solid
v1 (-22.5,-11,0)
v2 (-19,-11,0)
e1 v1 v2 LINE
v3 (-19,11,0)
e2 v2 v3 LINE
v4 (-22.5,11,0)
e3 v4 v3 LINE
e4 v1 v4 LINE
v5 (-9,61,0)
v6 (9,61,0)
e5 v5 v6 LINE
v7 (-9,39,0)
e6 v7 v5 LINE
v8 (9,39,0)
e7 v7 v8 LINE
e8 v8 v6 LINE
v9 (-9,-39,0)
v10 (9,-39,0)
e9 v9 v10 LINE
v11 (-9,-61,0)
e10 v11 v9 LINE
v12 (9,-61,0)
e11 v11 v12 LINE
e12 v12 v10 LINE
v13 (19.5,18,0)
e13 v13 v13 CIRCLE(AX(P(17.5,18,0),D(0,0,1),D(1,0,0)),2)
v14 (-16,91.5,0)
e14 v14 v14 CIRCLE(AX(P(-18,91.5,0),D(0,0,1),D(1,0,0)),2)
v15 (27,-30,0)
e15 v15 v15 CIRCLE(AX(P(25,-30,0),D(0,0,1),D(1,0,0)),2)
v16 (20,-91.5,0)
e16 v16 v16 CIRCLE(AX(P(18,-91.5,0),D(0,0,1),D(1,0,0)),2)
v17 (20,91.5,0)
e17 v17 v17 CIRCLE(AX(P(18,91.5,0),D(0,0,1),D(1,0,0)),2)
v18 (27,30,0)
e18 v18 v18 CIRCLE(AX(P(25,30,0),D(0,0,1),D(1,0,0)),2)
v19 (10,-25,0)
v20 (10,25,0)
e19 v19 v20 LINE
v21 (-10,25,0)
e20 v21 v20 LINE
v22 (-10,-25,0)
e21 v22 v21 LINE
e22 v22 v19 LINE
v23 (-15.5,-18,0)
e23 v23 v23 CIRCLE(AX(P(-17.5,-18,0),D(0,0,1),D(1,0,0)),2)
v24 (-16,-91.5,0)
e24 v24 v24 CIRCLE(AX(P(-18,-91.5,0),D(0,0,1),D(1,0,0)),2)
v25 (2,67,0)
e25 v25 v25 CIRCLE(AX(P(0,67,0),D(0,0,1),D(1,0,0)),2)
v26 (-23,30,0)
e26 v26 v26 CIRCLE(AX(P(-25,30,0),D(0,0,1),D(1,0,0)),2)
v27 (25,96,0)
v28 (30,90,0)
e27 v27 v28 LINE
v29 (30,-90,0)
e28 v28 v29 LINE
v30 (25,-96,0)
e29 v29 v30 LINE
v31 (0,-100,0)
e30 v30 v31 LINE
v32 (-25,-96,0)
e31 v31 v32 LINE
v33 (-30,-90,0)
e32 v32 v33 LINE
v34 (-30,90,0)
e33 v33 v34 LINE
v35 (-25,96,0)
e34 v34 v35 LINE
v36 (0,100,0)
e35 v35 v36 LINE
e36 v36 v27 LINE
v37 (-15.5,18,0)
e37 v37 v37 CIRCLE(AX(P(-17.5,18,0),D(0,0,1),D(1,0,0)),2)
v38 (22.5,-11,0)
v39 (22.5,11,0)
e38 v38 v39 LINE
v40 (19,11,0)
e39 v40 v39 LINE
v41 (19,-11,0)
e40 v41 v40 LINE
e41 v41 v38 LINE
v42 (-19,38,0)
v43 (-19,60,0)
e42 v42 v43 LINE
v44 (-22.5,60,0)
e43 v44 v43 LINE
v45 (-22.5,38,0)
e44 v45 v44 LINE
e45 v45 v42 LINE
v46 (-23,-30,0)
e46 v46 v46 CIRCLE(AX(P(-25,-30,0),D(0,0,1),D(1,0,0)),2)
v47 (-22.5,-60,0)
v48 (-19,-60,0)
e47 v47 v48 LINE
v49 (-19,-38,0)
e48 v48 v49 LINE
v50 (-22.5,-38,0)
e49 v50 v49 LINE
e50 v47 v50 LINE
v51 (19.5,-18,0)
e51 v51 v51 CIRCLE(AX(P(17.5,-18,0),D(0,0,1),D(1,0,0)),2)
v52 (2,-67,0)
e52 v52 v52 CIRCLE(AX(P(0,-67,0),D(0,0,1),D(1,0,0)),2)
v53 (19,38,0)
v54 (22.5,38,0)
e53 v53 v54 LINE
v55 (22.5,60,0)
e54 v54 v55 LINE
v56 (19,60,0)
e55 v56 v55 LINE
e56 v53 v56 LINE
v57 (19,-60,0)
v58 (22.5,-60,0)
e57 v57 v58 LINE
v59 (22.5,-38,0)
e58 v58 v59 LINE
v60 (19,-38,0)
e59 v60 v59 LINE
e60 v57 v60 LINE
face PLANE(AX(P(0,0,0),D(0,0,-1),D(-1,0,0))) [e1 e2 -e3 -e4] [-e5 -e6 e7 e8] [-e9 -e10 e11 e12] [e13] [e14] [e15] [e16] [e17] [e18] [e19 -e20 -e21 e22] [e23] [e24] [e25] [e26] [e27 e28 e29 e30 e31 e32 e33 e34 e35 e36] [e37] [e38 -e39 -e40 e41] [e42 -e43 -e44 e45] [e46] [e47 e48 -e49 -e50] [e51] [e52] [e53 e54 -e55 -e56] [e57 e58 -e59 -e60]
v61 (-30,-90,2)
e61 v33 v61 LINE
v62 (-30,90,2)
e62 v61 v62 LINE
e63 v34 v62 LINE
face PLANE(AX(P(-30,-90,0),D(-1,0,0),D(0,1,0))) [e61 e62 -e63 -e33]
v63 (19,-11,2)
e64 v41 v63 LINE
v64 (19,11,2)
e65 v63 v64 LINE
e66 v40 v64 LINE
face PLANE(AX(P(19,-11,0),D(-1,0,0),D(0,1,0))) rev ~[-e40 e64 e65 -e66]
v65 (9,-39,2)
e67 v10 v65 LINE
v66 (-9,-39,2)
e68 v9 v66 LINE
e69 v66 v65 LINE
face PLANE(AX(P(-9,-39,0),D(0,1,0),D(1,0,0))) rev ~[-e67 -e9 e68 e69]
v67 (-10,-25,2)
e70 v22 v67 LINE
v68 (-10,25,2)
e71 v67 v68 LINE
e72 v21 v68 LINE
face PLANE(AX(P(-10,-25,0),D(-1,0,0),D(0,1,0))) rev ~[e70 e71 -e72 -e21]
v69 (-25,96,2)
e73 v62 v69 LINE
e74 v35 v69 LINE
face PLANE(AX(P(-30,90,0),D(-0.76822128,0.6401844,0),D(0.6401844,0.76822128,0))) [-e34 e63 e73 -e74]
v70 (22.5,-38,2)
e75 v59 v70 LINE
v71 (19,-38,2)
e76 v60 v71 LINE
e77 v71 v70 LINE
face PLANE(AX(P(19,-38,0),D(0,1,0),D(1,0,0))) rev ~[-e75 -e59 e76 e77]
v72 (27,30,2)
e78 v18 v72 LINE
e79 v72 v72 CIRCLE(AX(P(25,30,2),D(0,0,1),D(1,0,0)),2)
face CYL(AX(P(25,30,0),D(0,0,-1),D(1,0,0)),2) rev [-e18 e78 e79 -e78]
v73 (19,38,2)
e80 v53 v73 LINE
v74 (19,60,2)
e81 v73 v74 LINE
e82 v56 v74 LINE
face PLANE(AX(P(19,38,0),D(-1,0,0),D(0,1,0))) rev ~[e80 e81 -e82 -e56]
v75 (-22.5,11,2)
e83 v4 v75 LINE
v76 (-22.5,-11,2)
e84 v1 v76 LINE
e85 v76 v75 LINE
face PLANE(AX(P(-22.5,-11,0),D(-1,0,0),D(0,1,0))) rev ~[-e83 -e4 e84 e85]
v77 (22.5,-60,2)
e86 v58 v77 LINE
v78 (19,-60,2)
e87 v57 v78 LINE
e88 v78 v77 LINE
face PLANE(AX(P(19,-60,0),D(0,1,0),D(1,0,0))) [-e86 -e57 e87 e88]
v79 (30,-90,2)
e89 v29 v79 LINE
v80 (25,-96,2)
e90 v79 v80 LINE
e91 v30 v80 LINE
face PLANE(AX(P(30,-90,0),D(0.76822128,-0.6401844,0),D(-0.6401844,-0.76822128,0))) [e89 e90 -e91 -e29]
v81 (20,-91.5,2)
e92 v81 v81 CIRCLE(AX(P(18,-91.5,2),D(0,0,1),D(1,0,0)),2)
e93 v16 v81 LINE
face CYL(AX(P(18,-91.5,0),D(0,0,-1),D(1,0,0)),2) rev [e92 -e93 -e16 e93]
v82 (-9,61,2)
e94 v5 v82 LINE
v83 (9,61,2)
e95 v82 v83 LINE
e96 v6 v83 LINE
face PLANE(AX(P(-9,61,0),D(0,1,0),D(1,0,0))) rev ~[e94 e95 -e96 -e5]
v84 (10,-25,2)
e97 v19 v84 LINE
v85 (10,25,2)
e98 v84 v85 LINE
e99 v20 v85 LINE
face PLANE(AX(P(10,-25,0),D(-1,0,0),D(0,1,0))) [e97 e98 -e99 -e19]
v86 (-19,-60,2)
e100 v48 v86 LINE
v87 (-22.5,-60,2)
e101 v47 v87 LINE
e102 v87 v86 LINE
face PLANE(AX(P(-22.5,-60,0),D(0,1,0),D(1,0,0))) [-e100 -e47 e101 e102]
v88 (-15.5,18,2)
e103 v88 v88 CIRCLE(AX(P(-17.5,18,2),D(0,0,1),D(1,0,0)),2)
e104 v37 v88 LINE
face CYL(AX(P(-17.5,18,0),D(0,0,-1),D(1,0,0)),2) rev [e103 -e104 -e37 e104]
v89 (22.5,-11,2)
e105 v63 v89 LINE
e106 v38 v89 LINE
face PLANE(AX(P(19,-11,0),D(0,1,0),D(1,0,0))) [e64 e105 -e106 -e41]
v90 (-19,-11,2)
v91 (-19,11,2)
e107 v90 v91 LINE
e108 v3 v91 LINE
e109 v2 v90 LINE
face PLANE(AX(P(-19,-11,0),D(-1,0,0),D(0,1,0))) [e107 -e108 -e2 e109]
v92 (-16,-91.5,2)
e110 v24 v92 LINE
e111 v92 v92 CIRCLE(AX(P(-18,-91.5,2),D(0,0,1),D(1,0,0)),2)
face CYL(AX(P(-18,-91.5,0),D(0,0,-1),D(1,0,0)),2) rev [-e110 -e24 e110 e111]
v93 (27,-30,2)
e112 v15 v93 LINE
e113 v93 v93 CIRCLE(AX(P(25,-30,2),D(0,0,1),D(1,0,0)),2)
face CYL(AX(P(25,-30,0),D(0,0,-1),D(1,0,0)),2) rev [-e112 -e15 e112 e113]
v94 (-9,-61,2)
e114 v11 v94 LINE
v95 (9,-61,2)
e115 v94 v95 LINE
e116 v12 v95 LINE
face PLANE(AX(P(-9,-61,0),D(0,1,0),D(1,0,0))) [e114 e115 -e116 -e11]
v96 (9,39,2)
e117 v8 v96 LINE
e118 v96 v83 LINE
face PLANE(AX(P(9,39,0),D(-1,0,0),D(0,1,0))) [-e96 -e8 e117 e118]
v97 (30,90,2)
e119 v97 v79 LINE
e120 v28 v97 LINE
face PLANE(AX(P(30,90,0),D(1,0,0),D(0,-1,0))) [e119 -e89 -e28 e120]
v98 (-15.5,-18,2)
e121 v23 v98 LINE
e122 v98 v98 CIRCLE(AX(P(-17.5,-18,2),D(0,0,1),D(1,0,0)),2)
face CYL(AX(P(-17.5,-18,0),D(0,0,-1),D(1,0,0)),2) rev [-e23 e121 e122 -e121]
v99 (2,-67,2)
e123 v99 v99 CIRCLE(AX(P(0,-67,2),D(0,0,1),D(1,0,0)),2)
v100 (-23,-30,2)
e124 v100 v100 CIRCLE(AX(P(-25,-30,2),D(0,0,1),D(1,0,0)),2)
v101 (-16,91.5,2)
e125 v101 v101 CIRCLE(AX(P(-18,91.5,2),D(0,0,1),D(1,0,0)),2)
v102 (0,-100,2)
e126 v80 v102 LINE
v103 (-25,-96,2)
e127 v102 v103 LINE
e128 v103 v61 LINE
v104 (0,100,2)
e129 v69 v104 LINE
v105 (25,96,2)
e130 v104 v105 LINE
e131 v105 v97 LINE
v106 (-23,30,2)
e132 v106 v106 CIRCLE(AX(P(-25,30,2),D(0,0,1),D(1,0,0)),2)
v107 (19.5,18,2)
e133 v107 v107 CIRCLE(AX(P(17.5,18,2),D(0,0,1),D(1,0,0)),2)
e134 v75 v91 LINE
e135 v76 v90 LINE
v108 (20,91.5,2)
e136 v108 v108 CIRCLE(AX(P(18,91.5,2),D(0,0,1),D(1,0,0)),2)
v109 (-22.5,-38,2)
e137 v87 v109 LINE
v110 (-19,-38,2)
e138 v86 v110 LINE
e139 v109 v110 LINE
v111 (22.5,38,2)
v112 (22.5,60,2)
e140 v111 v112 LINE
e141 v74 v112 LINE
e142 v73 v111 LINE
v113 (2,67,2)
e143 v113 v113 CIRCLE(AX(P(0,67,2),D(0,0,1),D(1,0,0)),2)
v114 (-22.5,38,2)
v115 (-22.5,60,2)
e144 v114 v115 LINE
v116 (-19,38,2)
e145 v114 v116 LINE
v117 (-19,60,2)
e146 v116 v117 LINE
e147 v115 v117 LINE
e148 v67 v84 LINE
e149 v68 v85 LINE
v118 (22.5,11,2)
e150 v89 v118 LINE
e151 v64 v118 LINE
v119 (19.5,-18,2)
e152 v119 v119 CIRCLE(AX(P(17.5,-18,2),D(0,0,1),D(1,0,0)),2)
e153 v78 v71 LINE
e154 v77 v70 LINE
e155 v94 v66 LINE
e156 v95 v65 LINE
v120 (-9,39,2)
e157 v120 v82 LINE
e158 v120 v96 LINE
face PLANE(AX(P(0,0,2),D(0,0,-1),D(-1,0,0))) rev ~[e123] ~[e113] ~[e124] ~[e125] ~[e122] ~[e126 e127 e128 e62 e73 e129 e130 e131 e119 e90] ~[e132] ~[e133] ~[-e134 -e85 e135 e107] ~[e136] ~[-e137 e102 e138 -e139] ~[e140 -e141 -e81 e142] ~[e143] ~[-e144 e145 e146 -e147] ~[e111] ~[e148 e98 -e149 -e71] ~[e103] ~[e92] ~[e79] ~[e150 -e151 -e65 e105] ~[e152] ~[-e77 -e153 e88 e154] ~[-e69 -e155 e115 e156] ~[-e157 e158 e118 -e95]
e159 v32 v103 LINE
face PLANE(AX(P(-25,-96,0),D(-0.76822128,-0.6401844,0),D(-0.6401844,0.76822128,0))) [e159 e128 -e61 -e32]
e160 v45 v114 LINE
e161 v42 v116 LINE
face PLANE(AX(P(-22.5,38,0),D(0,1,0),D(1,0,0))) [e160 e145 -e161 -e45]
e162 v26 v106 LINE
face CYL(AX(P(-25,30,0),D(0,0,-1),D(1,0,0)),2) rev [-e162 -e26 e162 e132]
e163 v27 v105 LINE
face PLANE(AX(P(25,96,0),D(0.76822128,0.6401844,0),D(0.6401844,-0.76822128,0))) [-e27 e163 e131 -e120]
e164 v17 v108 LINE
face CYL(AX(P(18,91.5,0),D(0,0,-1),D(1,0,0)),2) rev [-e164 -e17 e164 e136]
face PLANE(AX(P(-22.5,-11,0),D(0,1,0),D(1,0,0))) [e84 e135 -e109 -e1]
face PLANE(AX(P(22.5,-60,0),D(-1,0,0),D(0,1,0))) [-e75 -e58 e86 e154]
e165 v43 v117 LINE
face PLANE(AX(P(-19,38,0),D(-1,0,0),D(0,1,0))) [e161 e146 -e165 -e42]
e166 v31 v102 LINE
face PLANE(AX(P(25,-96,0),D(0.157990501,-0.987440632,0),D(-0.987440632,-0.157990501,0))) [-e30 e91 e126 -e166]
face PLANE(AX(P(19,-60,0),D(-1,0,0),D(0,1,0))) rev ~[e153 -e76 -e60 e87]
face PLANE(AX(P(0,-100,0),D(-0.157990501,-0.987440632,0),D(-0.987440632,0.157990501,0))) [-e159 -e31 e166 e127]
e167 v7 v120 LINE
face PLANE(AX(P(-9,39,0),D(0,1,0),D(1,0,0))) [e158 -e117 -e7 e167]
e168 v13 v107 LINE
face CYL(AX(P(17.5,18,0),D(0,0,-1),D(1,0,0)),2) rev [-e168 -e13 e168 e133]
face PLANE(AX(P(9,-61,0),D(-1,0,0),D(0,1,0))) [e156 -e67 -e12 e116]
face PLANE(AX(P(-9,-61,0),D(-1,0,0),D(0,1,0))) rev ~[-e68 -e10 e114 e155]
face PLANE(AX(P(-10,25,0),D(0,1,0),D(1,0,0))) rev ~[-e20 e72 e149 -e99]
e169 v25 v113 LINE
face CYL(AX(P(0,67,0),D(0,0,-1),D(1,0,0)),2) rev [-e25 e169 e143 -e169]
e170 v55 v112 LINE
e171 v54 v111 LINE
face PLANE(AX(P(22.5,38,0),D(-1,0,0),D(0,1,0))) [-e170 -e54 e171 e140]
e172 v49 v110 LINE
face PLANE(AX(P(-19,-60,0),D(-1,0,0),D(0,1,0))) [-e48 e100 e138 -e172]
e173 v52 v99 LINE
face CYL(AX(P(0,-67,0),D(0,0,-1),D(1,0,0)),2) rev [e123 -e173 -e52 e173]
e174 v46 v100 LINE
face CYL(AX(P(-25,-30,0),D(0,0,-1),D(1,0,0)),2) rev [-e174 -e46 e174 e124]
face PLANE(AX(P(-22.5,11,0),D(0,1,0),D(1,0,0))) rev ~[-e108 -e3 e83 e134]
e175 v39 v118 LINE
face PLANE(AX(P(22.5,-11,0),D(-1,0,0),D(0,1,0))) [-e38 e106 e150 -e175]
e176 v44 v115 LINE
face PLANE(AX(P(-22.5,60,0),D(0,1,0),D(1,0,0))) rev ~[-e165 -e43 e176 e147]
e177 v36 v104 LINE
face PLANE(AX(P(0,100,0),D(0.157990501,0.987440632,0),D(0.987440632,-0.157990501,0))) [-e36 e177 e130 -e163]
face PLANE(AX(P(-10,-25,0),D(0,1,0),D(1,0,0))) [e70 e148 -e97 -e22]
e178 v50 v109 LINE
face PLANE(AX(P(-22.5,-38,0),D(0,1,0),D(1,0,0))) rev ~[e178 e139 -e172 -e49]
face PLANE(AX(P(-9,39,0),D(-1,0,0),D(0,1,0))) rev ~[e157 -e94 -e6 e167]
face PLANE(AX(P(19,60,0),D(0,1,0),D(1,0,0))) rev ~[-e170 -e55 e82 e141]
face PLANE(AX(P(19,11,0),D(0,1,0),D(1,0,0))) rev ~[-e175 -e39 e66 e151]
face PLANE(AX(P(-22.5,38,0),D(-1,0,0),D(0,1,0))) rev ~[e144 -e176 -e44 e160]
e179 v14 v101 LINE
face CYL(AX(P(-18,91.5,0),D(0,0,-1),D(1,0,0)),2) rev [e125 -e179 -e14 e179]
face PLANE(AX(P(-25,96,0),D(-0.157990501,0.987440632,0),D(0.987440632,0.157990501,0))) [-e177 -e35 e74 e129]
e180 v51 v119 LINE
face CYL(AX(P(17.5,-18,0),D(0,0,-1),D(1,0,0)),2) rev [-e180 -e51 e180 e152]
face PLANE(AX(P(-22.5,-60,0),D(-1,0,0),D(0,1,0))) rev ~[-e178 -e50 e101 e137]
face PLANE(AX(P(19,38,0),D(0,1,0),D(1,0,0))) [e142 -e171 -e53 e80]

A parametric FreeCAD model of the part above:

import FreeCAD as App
import Part
import Sketcher
from FreeCAD import Vector


def add_polygon(sketch, points):
    """Adds a closed chain of lines whose ends are joined by coincident constraints."""
    first, n = sketch.GeometryCount, len(points)
    for a, b in zip(points, points[1:] + points[:1]):
        sketch.addGeometry(Part.LineSegment(App.Vector(*a, 0), App.Vector(*b, 0)), False)
    for i in range(n):
        sketch.addConstraint(Sketcher.Constraint("Coincident", first + i, 2, first + (i + 1) % n, 1))

doc = App.newDocument("Part")
body = doc.addObject("PartDesign::Body", "Body")

# Sketch on XY plane
sketch1 = doc.addObject("Sketcher::SketchObject", "Sketch")
body.addObject(sketch1)
sketch1.AttachmentSupport = (doc.XY_Plane, [""])
sketch1.MapMode = "FlatFace"
add_polygon(sketch1, [(-25, -96), (0, -100), (25, -96), (30, -90), (30, 90), (25, 96), (0, 100), (-25, 96), (-30, 90), (-30, -90)])  # lines 0-9
sketch1.addGeometry(Part.Circle(Vector(18, -91.5, 0), Vector(0, 0, 1), 2), False)  # 10
add_polygon(sketch1, [(19, -60), (19, -38), (22.5, -38), (22.5, -60)])  # lines 11-14
sketch1.addGeometry(Part.Circle(Vector(25, -30, 0), Vector(0, 0, 1), 2), False)  # 15
add_polygon(sketch1, [(19, -11), (19, 11), (22.5, 11), (22.5, -11)])  # lines 16-19
sketch1.addGeometry(Part.Circle(Vector(17.5, -18, 0), Vector(0, 0, 1), 2), False)  # 20
sketch1.addGeometry(Part.Circle(Vector(0, -67, 0), Vector(0, 0, 1), 2), False)  # 21
add_polygon(sketch1, [(-9, -61), (-9, -39), (9, -39), (9, -61)])  # lines 22-25
sketch1.addGeometry(Part.Circle(Vector(-18, -91.5, 0), Vector(0, 0, 1), 2), False)  # 26
add_polygon(sketch1, [(-22.5, -60), (-22.5, -38), (-19, -38), (-19, -60)])  # lines 27-30
add_polygon(sketch1, [(-10, -25), (-10, 25), (10, 25), (10, -25)])  # lines 31-34
sketch1.addGeometry(Part.Circle(Vector(-25, -30, 0), Vector(0, 0, 1), 2), False)  # 35
sketch1.addGeometry(Part.Circle(Vector(-17.5, -18, 0), Vector(0, 0, 1), 2), False)  # 36
add_polygon(sketch1, [(-22.5, -11), (-22.5, 11), (-19, 11), (-19, -11)])  # lines 37-40
sketch1.addGeometry(Part.Circle(Vector(17.5, 18, 0), Vector(0, 0, 1), 2), False)  # 41
sketch1.addGeometry(Part.Circle(Vector(25, 30, 0), Vector(0, 0, 1), 2), False)  # 42
add_polygon(sketch1, [(19, 38), (19, 60), (22.5, 60), (22.5, 38)])  # lines 43-46
sketch1.addGeometry(Part.Circle(Vector(18, 91.5, 0), Vector(0, 0, 1), 2), False)  # 47
sketch1.addGeometry(Part.Circle(Vector(-17.5, 18, 0), Vector(0, 0, 1), 2), False)  # 48
sketch1.addGeometry(Part.Circle(Vector(-25, 30, 0), Vector(0, 0, 1), 2), False)  # 49
add_polygon(sketch1, [(-9, 39), (-9, 61), (9, 61), (9, 39)])  # lines 50-53
sketch1.addGeometry(Part.Circle(Vector(0, 67, 0), Vector(0, 0, 1), 2), False)  # 54
add_polygon(sketch1, [(-22.5, 38), (-22.5, 60), (-19, 60), (-19, 38)])  # lines 55-58
sketch1.addGeometry(Part.Circle(Vector(-18, 91.5, 0), Vector(0, 0, 1), 2), False)  # 59
sketch1.addConstraint(Sketcher.Constraint("Vertical", 3))
sketch1.addConstraint(Sketcher.Constraint("Vertical", 8))
sketch1.addConstraint(Sketcher.Constraint("Vertical", 11))
sketch1.addConstraint(Sketcher.Constraint("Horizontal", 12))
sketch1.addConstraint(Sketcher.Constraint("Vertical", 13))
sketch1.addConstraint(Sketcher.Constraint("Horizontal", 14))
sketch1.addConstraint(Sketcher.Constraint("Vertical", 16))
sketch1.addConstraint(Sketcher.Constraint("Horizontal", 17))
sketch1.addConstraint(Sketcher.Constraint("Vertical", 18))
sketch1.addConstraint(Sketcher.Constraint("Horizontal", 19))
sketch1.addConstraint(Sketcher.Constraint("Vertical", 22))
sketch1.addConstraint(Sketcher.Constraint("Horizontal", 23))
sketch1.addConstraint(Sketcher.Constraint("Vertical", 24))
sketch1.addConstraint(Sketcher.Constraint("Horizontal", 25))
sketch1.addConstraint(Sketcher.Constraint("Vertical", 27))
sketch1.addConstraint(Sketcher.Constraint("Horizontal", 28))
sketch1.addConstraint(Sketcher.Constraint("Vertical", 29))
sketch1.addConstraint(Sketcher.Constraint("Horizontal", 30))
sketch1.addConstraint(Sketcher.Constraint("Vertical", 31))
sketch1.addConstraint(Sketcher.Constraint("Horizontal", 32))
sketch1.addConstraint(Sketcher.Constraint("Vertical", 33))
sketch1.addConstraint(Sketcher.Constraint("Horizontal", 34))
sketch1.addConstraint(Sketcher.Constraint("Vertical", 37))
sketch1.addConstraint(Sketcher.Constraint("Horizontal", 38))
sketch1.addConstraint(Sketcher.Constraint("Vertical", 39))
sketch1.addConstraint(Sketcher.Constraint("Horizontal", 40))
sketch1.addConstraint(Sketcher.Constraint("Vertical", 43))
sketch1.addConstraint(Sketcher.Constraint("Horizontal", 44))
sketch1.addConstraint(Sketcher.Constraint("Vertical", 45))
sketch1.addConstraint(Sketcher.Constraint("Horizontal", 46))
sketch1.addConstraint(Sketcher.Constraint("Vertical", 50))
sketch1.addConstraint(Sketcher.Constraint("Horizontal", 51))
sketch1.addConstraint(Sketcher.Constraint("Vertical", 52))
sketch1.addConstraint(Sketcher.Constraint("Horizontal", 53))
sketch1.addConstraint(Sketcher.Constraint("Vertical", 55))
sketch1.addConstraint(Sketcher.Constraint("Horizontal", 56))
sketch1.addConstraint(Sketcher.Constraint("Vertical", 57))
sketch1.addConstraint(Sketcher.Constraint("Horizontal", 58))
sketch1.addConstraint(Sketcher.Constraint("Equal", 10, 15))
sketch1.addConstraint(Sketcher.Constraint("Equal", 15, 20))
sketch1.addConstraint(Sketcher.Constraint("Equal", 20, 21))
sketch1.addConstraint(Sketcher.Constraint("Equal", 21, 26))
sketch1.addConstraint(Sketcher.Constraint("Equal", 26, 35))
sketch1.addConstraint(Sketcher.Constraint("Equal", 35, 36))
sketch1.addConstraint(Sketcher.Constraint("Equal", 36, 41))
sketch1.addConstraint(Sketcher.Constraint("Equal", 41, 42))
sketch1.addConstraint(Sketcher.Constraint("Equal", 42, 47))
sketch1.addConstraint(Sketcher.Constraint("Equal", 47, 48))
sketch1.addConstraint(Sketcher.Constraint("Equal", 48, 49))
sketch1.addConstraint(Sketcher.Constraint("Equal", 49, 54))
sketch1.addConstraint(Sketcher.Constraint("Equal", 54, 59))
sketch1.addConstraint(Sketcher.Constraint("Symmetric", 36, 3, 41, 3, -1, 1))
sketch1.addConstraint(Sketcher.Constraint("Symmetric", 35, 3, 42, 3, -1, 1))
sketch1.addConstraint(Sketcher.Constraint("Symmetric", 26, 3, 47, 3, -1, 1))
sketch1.addConstraint(Sketcher.Constraint("Symmetric", 20, 3, 48, 3, -1, 1))
sketch1.addConstraint(Sketcher.Constraint("Symmetric", 15, 3, 49, 3, -1, 1))
sketch1.addConstraint(Sketcher.Constraint("Symmetric", 21, 3, 54, 3, -1, 1))
sketch1.addConstraint(Sketcher.Constraint("Symmetric", 10, 3, 59, 3, -1, 1))
sketch1.addConstraint(Sketcher.Constraint("Symmetric", 0, 2, 5, 2, -1, 1))
sketch1.addConstraint(Sketcher.Constraint("Symmetric", 1, 2, 6, 2, -1, 1))
sketch1.addConstraint(Sketcher.Constraint("Symmetric", 2, 2, 7, 2, -1, 1))
sketch1.addConstraint(Sketcher.Constraint("Symmetric", 4, 2, 9, 2, -1, 1))
sketch1.addConstraint(Sketcher.Constraint("Symmetric", 31, 2, 33, 2, -1, 1))
sketch1.addConstraint(Sketcher.Constraint("Symmetric", 18, 2, 37, 2, -1, 1))
sketch1.addConstraint(Sketcher.Constraint("Symmetric", 16, 2, 39, 2, -1, 1))
sketch1.addConstraint(Sketcher.Constraint("Symmetric", 29, 2, 43, 2, -1, 1))
sketch1.addConstraint(Sketcher.Constraint("Symmetric", 27, 2, 45, 2, -1, 1))
sketch1.addConstraint(Sketcher.Constraint("Symmetric", 24, 2, 50, 2, -1, 1))
sketch1.addConstraint(Sketcher.Constraint("Symmetric", 22, 2, 52, 2, -1, 1))
sketch1.addConstraint(Sketcher.Constraint("Symmetric", 13, 2, 55, 2, -1, 1))
sketch1.addConstraint(Sketcher.Constraint("Symmetric", 11, 2, 57, 2, -1, 1))
sketch1.addConstraint(Sketcher.Constraint("Symmetric", 10, 3, 26, 3, -2))
sketch1.addConstraint(Sketcher.Constraint("Symmetric", 15, 3, 35, 3, -2))
sketch1.addConstraint(Sketcher.Constraint("Symmetric", 20, 3, 36, 3, -2))
sketch1.addConstraint(Sketcher.Constraint("Symmetric", 4, 2, 6, 2, -2))
sketch1.addConstraint(Sketcher.Constraint("Symmetric", 12, 2, 27, 2, -2))
sketch1.addConstraint(Sketcher.Constraint("Symmetric", 14, 2, 29, 2, -2))
sketch1.addConstraint(Sketcher.Constraint("PointOnObject", 21, 3, -2))
sketch1.addConstraint(Sketcher.Constraint("PointOnObject", 0, 2, -2))
sketch1.addConstraint(Sketcher.Constraint("Parallel", 4, 9))
sketch1.addConstraint(Sketcher.Constraint("Horizontal", 3, 2, 7, 2))
sketch1.addConstraint(Sketcher.Constraint("Horizontal", 17, 2, 37, 2))
sketch1.addConstraint(Sketcher.Constraint("Vertical", 42, 3, 1, 2))
sketch1.addConstraint(Sketcher.Constraint("Vertical", 14, 2, 16, 2))
sketch1.addConstraint(Sketcher.Constraint("Vertical", 13, 2, 17, 2))
sketch1.addConstraint(Sketcher.Constraint("Vertical", 25, 2, 50, 2))
sketch1.addConstraint(Sketcher.Constraint("Equal", 13, 16))
sketch1.addConstraint(Sketcher.Constraint("Equal", 18, 22))
sketch1.addConstraint(Sketcher.Constraint("Diameter", 10, 4.0))
sketch1.addConstraint(Sketcher.Constraint("DistanceX", 23, 1, 23, 2, 18.0))
sketch1.addConstraint(Sketcher.Constraint("DistanceX", 32, 1, 32, 2, 20.0))
sketch1.addConstraint(Sketcher.Constraint("DistanceY", 3, 1, 3, 2, 180.0))
sketch1.addConstraint(Sketcher.Constraint("DistanceY", 11, 1, 11, 2, 22.0))
sketch1.addConstraint(Sketcher.Constraint("DistanceY", 31, 1, 31, 2, 50.0))
sketch1.addConstraint(Sketcher.Constraint("DistanceX", 12, 1, 12, 2, 3.5))
sketch1.addConstraint(Sketcher.Constraint("DistanceX", -1, 1, 10, 3, 18.0))
sketch1.addConstraint(Sketcher.Constraint("DistanceX", -1, 1, 15, 3, 25.0))
sketch1.addConstraint(Sketcher.Constraint("DistanceY", 15, 3, -1, 1, 30.0))
sketch1.addConstraint(Sketcher.Constraint("DistanceY", 20, 3, -1, 1, 18.0))
sketch1.addConstraint(Sketcher.Constraint("DistanceY", 21, 3, -1, 1, 67.0))
sketch1.addConstraint(Sketcher.Constraint("DistanceY", 0, 2, -1, 1, 100.0))
sketch1.addConstraint(Sketcher.Constraint("DistanceY", 1, 2, -1, 1, 96.0))
sketch1.addConstraint(Sketcher.Constraint("DistanceX", -1, 1, 2, 2, 30.0))
sketch1.addConstraint(Sketcher.Constraint("DistanceX", -1, 1, 11, 2, 19.0))
sketch1.addConstraint(Sketcher.Constraint("DistanceY", 11, 2, -1, 1, 38.0))
sketch1.addConstraint(Sketcher.Constraint("DistanceY", 22, 2, -1, 1, 39.0))
sketch1.addConstraint(Sketcher.Constraint("DistanceX", 36, 3, 20, 3, 35.0))
sketch1.addConstraint(Sketcher.Constraint("DistanceY", 10, 3, -1, 1, 91.5))
pad1 = doc.addObject("PartDesign::Pad", "Pad")
body.addObject(pad1)
pad1.Profile = sketch1
pad1.Length = 2

doc.recompute()
